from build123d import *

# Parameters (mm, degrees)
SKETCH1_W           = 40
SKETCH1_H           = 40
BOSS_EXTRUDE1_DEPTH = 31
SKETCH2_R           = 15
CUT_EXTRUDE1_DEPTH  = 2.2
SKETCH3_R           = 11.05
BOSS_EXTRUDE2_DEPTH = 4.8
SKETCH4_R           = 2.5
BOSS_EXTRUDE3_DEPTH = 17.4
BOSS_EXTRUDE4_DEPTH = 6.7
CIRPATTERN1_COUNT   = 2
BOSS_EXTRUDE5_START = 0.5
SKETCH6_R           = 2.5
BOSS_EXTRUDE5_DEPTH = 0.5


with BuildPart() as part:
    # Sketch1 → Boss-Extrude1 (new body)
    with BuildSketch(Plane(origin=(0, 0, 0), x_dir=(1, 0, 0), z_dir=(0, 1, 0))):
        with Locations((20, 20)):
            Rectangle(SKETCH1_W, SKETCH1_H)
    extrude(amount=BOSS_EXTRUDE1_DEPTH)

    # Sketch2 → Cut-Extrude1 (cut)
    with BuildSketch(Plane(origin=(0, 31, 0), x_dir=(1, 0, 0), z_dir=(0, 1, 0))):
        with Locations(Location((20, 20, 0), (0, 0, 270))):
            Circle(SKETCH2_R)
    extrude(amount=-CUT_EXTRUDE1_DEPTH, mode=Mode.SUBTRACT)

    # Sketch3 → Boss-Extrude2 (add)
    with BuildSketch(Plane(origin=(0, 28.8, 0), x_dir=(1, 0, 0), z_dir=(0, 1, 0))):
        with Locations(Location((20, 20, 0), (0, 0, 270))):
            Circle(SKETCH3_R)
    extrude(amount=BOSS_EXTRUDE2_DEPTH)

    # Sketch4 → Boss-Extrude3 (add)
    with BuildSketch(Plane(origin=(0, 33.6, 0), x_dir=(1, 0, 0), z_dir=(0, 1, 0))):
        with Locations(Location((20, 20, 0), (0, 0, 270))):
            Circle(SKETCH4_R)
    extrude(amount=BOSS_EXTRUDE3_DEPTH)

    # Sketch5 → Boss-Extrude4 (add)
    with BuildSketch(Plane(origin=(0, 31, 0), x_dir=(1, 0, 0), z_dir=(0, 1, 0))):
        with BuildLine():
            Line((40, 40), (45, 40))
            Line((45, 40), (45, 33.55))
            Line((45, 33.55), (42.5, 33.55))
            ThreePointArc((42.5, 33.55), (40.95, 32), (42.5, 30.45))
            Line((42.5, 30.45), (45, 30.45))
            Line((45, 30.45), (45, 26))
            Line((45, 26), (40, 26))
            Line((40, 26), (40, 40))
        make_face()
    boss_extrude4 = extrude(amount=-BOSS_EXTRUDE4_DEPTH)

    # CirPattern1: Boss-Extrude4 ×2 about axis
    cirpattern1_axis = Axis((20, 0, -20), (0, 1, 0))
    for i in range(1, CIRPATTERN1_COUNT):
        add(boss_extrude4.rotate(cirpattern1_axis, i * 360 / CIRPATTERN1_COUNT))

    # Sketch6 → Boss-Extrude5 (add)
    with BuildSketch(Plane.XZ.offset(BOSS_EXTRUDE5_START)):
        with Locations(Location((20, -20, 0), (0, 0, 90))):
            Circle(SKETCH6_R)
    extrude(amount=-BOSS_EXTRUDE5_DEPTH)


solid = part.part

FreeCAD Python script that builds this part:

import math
import FreeCAD as App
import Part
import Sketcher

V = App.Vector

doc = App.newDocument("Part")
body = doc.addObject("PartDesign::Body", "Body")

# Sketch on XZ plane
sketch1 = body.newObject("Sketcher::SketchObject", "Sketch")
sketch1.AttachmentSupport = (doc.getObject("XZ_Plane"), [""])
sketch1.MapMode = "FlatFace"
sketch1.addGeometry(Part.LineSegment(V(0, -40, 0), V(0, 0, 0)), False)
sketch1.addGeometry(Part.LineSegment(V(0, 0, 0), V(40, 0, 0)), False)
sketch1.addGeometry(Part.LineSegment(V(40, 0, 0), V(40, -40, 0)), False)
sketch1.addGeometry(Part.LineSegment(V(40, -40, 0), V(0, -40, 0)), False)
sketch1.addConstraint(Sketcher.Constraint("Coincident", 0, 2, 1, 1))
sketch1.addConstraint(Sketcher.Constraint("Coincident", 1, 2, 2, 1))
sketch1.addConstraint(Sketcher.Constraint("Coincident", 2, 2, 3, 1))
sketch1.addConstraint(Sketcher.Constraint("Coincident", 3, 2, 0, 1))
sketch1.addConstraint(Sketcher.Constraint("Vertical", 0))
sketch1.addConstraint(Sketcher.Constraint("Horizontal", 1))
sketch1.addConstraint(Sketcher.Constraint("Vertical", 2))
sketch1.addConstraint(Sketcher.Constraint("Horizontal", 3))
sketch1.addConstraint(Sketcher.Constraint("Coincident", 0, 2, -1, 1))
sketch1.addConstraint(Sketcher.Constraint("Equal", 3, 0))
sketch1.addConstraint(Sketcher.Constraint("DistanceX", 1, 1, 1, 2, 40.0))
pad1 = body.newObject("PartDesign::Pad", "Pad")
pad1.Profile = sketch1
pad1.Length = 31
pad1.Reversed = True

# Sketch on XZ plane
sketch2 = body.newObject("Sketcher::SketchObject", "Sketch001")
sketch2.AttachmentSupport = (doc.getObject("XZ_Plane"), [""])
sketch2.MapMode = "FlatFace"
sketch2.AttachmentOffset = App.Placement(V(0, 0, -31), App.Rotation())
sketch2.addGeometry(Part.Circle(V(20, -20, 0), V(0, 0, 1), 15), False)
sketch2.addConstraint(Sketcher.Constraint("Diameter", 0, 30.0))
sketch2.addConstraint(Sketcher.Constraint("DistanceX", -1, 1, 0, 3, 20.0))
sketch2.addConstraint(Sketcher.Constraint("DistanceY", 0, 3, -1, 1, 20.0))
pocket1 = body.newObject("PartDesign::Pocket", "Pocket")
pocket1.Profile = sketch2
pocket1.Length = 2.2
pocket1.Reversed = True

# Sketch on XZ plane
sketch3 = body.newObject("Sketcher::SketchObject", "Sketch002")
sketch3.AttachmentSupport = (doc.getObject("XZ_Plane"), [""])
sketch3.MapMode = "FlatFace"
sketch3.AttachmentOffset = App.Placement(V(0, 0, -28.8), App.Rotation())
sketch3.addGeometry(Part.Circle(V(20, -20, 0), V(0, 0, 1), 11), False)
sketch3.addConstraint(Sketcher.Constraint("Diameter", 0, 22.1))
sketch3.addConstraint(Sketcher.Constraint("DistanceX", -1, 1, 0, 3, 20.0))
sketch3.addConstraint(Sketcher.Constraint("DistanceY", 0, 3, -1, 1, 20.0))
pad2 = body.newObject("PartDesign::Pad", "Pad001")
pad2.Profile = sketch3
pad2.Length = 4.8
pad2.Reversed = True

# Sketch on XZ plane
sketch4 = body.newObject("Sketcher::SketchObject", "Sketch003")
sketch4.AttachmentSupport = (doc.getObject("XZ_Plane"), [""])
sketch4.MapMode = "FlatFace"
sketch4.AttachmentOffset = App.Placement(V(0, 0, -33.6), App.Rotation())
sketch4.addGeometry(Part.Circle(V(20, -20, 0), V(0, 0, 1), 2.5), False)
sketch4.addConstraint(Sketcher.Constraint("Diameter", 0, 5.0))
sketch4.addConstraint(Sketcher.Constraint("DistanceX", -1, 1, 0, 3, 20.0))
sketch4.addConstraint(Sketcher.Constraint("DistanceY", 0, 3, -1, 1, 20.0))
pad3 = body.newObject("PartDesign::Pad", "Pad002")
pad3.Profile = sketch4
pad3.Length = 17.4
pad3.Reversed = True

# Sketch on XZ plane
sketch5 = body.newObject("Sketcher::SketchObject", "Sketch004")
sketch5.AttachmentSupport = (doc.getObject("XZ_Plane"), [""])
sketch5.MapMode = "FlatFace"
sketch5.AttachmentOffset = App.Placement(V(0, 0, -31), App.Rotation())
sketch5.addGeometry(Part.LineSegment(V(45, -40, 0), V(40, -40, 0)), False)
sketch5.addGeometry(Part.LineSegment(V(40, -40, 0), V(40, -26, 0)), False)
sketch5.addGeometry(Part.LineSegment(V(40, -26, 0), V(45, -26, 0)), False)
sketch5.addGeometry(Part.LineSegment(V(45, -26, 0), V(45, -30.4, 0)), False)
sketch5.addGeometry(Part.LineSegment(V(45, -30.4, 0), V(42.5, -30.4, 0)), False)
sketch5.addGeometry(Part.ArcOfCircle(Part.Circle(V(42.5, -32, 0), V(0, 0, 1), 1.6), math.radians(90), math.radians(270)), False)
sketch5.addGeometry(Part.LineSegment(V(42.5, -33.5, 0), V(45, -33.5, 0)), False)
sketch5.addGeometry(Part.LineSegment(V(45, -33.5, 0), V(45, -40, 0)), False)
sketch5.addConstraint(Sketcher.Constraint("Coincident", 0, 2, 1, 1))
sketch5.addConstraint(Sketcher.Constraint("Coincident", 1, 2, 2, 1))
sketch5.addConstraint(Sketcher.Constraint("Coincident", 2, 2, 3, 1))
sketch5.addConstraint(Sketcher.Constraint("Coincident", 3, 2, 4, 1))
sketch5.addConstraint(Sketcher.Constraint("Tangent", 4, 2, 5, 1))
sketch5.addConstraint(Sketcher.Constraint("Tangent", 5, 2, 6, 1))
sketch5.addConstraint(Sketcher.Constraint("Coincident", 6, 2, 7, 1))
sketch5.addConstraint(Sketcher.Constraint("Coincident", 7, 2, 0, 1))
sketch5.addConstraint(Sketcher.Constraint("Horizontal", 0))
sketch5.addConstraint(Sketcher.Constraint("Vertical", 1))
sketch5.addConstraint(Sketcher.Constraint("Horizontal", 2))
sketch5.addConstraint(Sketcher.Constraint("Vertical", 3))
sketch5.addConstraint(Sketcher.Constraint("Horizontal", 4))
sketch5.addConstraint(Sketcher.Constraint("Horizontal", 6))
sketch5.addConstraint(Sketcher.Constraint("Vertical", 7))
sketch5.addConstraint(Sketcher.Constraint("Vertical", 3, 2, 6, 2))
sketch5.addConstraint(Sketcher.Constraint("DistanceX", 0, 2, 0, 1, 5.0))
sketch5.addConstraint(Sketcher.Constraint("DistanceY", 1, 1, 1, 2, 14.0))
sketch5.addConstraint(Sketcher.Constraint("Radius", 5, 1.55))
sketch5.addConstraint(Sketcher.Constraint("DistanceX", 4, 2, 4, 1, 2.5))
sketch5.addConstraint(Sketcher.Constraint("DistanceY", 5, 3, -1, 1, 32.0))
sketch5.addConstraint(Sketcher.Constraint("DistanceX", -1, 1, 0, 2, 40.0))
sketch5.addConstraint(Sketcher.Constraint("DistanceY", 0, 2, -1, 1, 40.0))
pad4 = body.newObject("PartDesign::Pad", "Pad003")
pad4.Profile = sketch5
pad4.Length = 6.7
doc.recompute()

datumline = body.newObject("PartDesign::Line", "DatumLine")
datumline.Placement = App.Placement(V(20, 0, -20), App.Rotation(V(0, 0, 1), V(0, 1, 0)))
polarpattern = body.newObject("PartDesign::PolarPattern", "PolarPattern")
polarpattern.Originals = [pad4]
polarpattern.Axis = (datumline, [""])
polarpattern.Angle = 360
polarpattern.Occurrences = 2
body.Tip = polarpattern

# Sketch on XZ plane
sketch6 = body.newObject("Sketcher::SketchObject", "Sketch005")
sketch6.AttachmentSupport = (doc.getObject("XZ_Plane"), [""])
sketch6.MapMode = "FlatFace"
sketch6.AttachmentOffset = App.Placement(V(0, 0, 0.5), App.Rotation())
sketch6.addGeometry(Part.Circle(V(20, -20, 0), V(0, 0, 1), 2.5), False)
sketch6.addConstraint(Sketcher.Constraint("Diameter", 0, 5.0))
sketch6.addConstraint(Sketcher.Constraint("DistanceX", -1, 1, 0, 3, 20.0))
sketch6.addConstraint(Sketcher.Constraint("DistanceY", 0, 3, -1, 1, 20.0))
pad5 = body.newObject("PartDesign::Pad", "Pad004")
pad5.Profile = sketch6
pad5.Length = 0.5
pad5.Reversed = True

doc.recompute()
